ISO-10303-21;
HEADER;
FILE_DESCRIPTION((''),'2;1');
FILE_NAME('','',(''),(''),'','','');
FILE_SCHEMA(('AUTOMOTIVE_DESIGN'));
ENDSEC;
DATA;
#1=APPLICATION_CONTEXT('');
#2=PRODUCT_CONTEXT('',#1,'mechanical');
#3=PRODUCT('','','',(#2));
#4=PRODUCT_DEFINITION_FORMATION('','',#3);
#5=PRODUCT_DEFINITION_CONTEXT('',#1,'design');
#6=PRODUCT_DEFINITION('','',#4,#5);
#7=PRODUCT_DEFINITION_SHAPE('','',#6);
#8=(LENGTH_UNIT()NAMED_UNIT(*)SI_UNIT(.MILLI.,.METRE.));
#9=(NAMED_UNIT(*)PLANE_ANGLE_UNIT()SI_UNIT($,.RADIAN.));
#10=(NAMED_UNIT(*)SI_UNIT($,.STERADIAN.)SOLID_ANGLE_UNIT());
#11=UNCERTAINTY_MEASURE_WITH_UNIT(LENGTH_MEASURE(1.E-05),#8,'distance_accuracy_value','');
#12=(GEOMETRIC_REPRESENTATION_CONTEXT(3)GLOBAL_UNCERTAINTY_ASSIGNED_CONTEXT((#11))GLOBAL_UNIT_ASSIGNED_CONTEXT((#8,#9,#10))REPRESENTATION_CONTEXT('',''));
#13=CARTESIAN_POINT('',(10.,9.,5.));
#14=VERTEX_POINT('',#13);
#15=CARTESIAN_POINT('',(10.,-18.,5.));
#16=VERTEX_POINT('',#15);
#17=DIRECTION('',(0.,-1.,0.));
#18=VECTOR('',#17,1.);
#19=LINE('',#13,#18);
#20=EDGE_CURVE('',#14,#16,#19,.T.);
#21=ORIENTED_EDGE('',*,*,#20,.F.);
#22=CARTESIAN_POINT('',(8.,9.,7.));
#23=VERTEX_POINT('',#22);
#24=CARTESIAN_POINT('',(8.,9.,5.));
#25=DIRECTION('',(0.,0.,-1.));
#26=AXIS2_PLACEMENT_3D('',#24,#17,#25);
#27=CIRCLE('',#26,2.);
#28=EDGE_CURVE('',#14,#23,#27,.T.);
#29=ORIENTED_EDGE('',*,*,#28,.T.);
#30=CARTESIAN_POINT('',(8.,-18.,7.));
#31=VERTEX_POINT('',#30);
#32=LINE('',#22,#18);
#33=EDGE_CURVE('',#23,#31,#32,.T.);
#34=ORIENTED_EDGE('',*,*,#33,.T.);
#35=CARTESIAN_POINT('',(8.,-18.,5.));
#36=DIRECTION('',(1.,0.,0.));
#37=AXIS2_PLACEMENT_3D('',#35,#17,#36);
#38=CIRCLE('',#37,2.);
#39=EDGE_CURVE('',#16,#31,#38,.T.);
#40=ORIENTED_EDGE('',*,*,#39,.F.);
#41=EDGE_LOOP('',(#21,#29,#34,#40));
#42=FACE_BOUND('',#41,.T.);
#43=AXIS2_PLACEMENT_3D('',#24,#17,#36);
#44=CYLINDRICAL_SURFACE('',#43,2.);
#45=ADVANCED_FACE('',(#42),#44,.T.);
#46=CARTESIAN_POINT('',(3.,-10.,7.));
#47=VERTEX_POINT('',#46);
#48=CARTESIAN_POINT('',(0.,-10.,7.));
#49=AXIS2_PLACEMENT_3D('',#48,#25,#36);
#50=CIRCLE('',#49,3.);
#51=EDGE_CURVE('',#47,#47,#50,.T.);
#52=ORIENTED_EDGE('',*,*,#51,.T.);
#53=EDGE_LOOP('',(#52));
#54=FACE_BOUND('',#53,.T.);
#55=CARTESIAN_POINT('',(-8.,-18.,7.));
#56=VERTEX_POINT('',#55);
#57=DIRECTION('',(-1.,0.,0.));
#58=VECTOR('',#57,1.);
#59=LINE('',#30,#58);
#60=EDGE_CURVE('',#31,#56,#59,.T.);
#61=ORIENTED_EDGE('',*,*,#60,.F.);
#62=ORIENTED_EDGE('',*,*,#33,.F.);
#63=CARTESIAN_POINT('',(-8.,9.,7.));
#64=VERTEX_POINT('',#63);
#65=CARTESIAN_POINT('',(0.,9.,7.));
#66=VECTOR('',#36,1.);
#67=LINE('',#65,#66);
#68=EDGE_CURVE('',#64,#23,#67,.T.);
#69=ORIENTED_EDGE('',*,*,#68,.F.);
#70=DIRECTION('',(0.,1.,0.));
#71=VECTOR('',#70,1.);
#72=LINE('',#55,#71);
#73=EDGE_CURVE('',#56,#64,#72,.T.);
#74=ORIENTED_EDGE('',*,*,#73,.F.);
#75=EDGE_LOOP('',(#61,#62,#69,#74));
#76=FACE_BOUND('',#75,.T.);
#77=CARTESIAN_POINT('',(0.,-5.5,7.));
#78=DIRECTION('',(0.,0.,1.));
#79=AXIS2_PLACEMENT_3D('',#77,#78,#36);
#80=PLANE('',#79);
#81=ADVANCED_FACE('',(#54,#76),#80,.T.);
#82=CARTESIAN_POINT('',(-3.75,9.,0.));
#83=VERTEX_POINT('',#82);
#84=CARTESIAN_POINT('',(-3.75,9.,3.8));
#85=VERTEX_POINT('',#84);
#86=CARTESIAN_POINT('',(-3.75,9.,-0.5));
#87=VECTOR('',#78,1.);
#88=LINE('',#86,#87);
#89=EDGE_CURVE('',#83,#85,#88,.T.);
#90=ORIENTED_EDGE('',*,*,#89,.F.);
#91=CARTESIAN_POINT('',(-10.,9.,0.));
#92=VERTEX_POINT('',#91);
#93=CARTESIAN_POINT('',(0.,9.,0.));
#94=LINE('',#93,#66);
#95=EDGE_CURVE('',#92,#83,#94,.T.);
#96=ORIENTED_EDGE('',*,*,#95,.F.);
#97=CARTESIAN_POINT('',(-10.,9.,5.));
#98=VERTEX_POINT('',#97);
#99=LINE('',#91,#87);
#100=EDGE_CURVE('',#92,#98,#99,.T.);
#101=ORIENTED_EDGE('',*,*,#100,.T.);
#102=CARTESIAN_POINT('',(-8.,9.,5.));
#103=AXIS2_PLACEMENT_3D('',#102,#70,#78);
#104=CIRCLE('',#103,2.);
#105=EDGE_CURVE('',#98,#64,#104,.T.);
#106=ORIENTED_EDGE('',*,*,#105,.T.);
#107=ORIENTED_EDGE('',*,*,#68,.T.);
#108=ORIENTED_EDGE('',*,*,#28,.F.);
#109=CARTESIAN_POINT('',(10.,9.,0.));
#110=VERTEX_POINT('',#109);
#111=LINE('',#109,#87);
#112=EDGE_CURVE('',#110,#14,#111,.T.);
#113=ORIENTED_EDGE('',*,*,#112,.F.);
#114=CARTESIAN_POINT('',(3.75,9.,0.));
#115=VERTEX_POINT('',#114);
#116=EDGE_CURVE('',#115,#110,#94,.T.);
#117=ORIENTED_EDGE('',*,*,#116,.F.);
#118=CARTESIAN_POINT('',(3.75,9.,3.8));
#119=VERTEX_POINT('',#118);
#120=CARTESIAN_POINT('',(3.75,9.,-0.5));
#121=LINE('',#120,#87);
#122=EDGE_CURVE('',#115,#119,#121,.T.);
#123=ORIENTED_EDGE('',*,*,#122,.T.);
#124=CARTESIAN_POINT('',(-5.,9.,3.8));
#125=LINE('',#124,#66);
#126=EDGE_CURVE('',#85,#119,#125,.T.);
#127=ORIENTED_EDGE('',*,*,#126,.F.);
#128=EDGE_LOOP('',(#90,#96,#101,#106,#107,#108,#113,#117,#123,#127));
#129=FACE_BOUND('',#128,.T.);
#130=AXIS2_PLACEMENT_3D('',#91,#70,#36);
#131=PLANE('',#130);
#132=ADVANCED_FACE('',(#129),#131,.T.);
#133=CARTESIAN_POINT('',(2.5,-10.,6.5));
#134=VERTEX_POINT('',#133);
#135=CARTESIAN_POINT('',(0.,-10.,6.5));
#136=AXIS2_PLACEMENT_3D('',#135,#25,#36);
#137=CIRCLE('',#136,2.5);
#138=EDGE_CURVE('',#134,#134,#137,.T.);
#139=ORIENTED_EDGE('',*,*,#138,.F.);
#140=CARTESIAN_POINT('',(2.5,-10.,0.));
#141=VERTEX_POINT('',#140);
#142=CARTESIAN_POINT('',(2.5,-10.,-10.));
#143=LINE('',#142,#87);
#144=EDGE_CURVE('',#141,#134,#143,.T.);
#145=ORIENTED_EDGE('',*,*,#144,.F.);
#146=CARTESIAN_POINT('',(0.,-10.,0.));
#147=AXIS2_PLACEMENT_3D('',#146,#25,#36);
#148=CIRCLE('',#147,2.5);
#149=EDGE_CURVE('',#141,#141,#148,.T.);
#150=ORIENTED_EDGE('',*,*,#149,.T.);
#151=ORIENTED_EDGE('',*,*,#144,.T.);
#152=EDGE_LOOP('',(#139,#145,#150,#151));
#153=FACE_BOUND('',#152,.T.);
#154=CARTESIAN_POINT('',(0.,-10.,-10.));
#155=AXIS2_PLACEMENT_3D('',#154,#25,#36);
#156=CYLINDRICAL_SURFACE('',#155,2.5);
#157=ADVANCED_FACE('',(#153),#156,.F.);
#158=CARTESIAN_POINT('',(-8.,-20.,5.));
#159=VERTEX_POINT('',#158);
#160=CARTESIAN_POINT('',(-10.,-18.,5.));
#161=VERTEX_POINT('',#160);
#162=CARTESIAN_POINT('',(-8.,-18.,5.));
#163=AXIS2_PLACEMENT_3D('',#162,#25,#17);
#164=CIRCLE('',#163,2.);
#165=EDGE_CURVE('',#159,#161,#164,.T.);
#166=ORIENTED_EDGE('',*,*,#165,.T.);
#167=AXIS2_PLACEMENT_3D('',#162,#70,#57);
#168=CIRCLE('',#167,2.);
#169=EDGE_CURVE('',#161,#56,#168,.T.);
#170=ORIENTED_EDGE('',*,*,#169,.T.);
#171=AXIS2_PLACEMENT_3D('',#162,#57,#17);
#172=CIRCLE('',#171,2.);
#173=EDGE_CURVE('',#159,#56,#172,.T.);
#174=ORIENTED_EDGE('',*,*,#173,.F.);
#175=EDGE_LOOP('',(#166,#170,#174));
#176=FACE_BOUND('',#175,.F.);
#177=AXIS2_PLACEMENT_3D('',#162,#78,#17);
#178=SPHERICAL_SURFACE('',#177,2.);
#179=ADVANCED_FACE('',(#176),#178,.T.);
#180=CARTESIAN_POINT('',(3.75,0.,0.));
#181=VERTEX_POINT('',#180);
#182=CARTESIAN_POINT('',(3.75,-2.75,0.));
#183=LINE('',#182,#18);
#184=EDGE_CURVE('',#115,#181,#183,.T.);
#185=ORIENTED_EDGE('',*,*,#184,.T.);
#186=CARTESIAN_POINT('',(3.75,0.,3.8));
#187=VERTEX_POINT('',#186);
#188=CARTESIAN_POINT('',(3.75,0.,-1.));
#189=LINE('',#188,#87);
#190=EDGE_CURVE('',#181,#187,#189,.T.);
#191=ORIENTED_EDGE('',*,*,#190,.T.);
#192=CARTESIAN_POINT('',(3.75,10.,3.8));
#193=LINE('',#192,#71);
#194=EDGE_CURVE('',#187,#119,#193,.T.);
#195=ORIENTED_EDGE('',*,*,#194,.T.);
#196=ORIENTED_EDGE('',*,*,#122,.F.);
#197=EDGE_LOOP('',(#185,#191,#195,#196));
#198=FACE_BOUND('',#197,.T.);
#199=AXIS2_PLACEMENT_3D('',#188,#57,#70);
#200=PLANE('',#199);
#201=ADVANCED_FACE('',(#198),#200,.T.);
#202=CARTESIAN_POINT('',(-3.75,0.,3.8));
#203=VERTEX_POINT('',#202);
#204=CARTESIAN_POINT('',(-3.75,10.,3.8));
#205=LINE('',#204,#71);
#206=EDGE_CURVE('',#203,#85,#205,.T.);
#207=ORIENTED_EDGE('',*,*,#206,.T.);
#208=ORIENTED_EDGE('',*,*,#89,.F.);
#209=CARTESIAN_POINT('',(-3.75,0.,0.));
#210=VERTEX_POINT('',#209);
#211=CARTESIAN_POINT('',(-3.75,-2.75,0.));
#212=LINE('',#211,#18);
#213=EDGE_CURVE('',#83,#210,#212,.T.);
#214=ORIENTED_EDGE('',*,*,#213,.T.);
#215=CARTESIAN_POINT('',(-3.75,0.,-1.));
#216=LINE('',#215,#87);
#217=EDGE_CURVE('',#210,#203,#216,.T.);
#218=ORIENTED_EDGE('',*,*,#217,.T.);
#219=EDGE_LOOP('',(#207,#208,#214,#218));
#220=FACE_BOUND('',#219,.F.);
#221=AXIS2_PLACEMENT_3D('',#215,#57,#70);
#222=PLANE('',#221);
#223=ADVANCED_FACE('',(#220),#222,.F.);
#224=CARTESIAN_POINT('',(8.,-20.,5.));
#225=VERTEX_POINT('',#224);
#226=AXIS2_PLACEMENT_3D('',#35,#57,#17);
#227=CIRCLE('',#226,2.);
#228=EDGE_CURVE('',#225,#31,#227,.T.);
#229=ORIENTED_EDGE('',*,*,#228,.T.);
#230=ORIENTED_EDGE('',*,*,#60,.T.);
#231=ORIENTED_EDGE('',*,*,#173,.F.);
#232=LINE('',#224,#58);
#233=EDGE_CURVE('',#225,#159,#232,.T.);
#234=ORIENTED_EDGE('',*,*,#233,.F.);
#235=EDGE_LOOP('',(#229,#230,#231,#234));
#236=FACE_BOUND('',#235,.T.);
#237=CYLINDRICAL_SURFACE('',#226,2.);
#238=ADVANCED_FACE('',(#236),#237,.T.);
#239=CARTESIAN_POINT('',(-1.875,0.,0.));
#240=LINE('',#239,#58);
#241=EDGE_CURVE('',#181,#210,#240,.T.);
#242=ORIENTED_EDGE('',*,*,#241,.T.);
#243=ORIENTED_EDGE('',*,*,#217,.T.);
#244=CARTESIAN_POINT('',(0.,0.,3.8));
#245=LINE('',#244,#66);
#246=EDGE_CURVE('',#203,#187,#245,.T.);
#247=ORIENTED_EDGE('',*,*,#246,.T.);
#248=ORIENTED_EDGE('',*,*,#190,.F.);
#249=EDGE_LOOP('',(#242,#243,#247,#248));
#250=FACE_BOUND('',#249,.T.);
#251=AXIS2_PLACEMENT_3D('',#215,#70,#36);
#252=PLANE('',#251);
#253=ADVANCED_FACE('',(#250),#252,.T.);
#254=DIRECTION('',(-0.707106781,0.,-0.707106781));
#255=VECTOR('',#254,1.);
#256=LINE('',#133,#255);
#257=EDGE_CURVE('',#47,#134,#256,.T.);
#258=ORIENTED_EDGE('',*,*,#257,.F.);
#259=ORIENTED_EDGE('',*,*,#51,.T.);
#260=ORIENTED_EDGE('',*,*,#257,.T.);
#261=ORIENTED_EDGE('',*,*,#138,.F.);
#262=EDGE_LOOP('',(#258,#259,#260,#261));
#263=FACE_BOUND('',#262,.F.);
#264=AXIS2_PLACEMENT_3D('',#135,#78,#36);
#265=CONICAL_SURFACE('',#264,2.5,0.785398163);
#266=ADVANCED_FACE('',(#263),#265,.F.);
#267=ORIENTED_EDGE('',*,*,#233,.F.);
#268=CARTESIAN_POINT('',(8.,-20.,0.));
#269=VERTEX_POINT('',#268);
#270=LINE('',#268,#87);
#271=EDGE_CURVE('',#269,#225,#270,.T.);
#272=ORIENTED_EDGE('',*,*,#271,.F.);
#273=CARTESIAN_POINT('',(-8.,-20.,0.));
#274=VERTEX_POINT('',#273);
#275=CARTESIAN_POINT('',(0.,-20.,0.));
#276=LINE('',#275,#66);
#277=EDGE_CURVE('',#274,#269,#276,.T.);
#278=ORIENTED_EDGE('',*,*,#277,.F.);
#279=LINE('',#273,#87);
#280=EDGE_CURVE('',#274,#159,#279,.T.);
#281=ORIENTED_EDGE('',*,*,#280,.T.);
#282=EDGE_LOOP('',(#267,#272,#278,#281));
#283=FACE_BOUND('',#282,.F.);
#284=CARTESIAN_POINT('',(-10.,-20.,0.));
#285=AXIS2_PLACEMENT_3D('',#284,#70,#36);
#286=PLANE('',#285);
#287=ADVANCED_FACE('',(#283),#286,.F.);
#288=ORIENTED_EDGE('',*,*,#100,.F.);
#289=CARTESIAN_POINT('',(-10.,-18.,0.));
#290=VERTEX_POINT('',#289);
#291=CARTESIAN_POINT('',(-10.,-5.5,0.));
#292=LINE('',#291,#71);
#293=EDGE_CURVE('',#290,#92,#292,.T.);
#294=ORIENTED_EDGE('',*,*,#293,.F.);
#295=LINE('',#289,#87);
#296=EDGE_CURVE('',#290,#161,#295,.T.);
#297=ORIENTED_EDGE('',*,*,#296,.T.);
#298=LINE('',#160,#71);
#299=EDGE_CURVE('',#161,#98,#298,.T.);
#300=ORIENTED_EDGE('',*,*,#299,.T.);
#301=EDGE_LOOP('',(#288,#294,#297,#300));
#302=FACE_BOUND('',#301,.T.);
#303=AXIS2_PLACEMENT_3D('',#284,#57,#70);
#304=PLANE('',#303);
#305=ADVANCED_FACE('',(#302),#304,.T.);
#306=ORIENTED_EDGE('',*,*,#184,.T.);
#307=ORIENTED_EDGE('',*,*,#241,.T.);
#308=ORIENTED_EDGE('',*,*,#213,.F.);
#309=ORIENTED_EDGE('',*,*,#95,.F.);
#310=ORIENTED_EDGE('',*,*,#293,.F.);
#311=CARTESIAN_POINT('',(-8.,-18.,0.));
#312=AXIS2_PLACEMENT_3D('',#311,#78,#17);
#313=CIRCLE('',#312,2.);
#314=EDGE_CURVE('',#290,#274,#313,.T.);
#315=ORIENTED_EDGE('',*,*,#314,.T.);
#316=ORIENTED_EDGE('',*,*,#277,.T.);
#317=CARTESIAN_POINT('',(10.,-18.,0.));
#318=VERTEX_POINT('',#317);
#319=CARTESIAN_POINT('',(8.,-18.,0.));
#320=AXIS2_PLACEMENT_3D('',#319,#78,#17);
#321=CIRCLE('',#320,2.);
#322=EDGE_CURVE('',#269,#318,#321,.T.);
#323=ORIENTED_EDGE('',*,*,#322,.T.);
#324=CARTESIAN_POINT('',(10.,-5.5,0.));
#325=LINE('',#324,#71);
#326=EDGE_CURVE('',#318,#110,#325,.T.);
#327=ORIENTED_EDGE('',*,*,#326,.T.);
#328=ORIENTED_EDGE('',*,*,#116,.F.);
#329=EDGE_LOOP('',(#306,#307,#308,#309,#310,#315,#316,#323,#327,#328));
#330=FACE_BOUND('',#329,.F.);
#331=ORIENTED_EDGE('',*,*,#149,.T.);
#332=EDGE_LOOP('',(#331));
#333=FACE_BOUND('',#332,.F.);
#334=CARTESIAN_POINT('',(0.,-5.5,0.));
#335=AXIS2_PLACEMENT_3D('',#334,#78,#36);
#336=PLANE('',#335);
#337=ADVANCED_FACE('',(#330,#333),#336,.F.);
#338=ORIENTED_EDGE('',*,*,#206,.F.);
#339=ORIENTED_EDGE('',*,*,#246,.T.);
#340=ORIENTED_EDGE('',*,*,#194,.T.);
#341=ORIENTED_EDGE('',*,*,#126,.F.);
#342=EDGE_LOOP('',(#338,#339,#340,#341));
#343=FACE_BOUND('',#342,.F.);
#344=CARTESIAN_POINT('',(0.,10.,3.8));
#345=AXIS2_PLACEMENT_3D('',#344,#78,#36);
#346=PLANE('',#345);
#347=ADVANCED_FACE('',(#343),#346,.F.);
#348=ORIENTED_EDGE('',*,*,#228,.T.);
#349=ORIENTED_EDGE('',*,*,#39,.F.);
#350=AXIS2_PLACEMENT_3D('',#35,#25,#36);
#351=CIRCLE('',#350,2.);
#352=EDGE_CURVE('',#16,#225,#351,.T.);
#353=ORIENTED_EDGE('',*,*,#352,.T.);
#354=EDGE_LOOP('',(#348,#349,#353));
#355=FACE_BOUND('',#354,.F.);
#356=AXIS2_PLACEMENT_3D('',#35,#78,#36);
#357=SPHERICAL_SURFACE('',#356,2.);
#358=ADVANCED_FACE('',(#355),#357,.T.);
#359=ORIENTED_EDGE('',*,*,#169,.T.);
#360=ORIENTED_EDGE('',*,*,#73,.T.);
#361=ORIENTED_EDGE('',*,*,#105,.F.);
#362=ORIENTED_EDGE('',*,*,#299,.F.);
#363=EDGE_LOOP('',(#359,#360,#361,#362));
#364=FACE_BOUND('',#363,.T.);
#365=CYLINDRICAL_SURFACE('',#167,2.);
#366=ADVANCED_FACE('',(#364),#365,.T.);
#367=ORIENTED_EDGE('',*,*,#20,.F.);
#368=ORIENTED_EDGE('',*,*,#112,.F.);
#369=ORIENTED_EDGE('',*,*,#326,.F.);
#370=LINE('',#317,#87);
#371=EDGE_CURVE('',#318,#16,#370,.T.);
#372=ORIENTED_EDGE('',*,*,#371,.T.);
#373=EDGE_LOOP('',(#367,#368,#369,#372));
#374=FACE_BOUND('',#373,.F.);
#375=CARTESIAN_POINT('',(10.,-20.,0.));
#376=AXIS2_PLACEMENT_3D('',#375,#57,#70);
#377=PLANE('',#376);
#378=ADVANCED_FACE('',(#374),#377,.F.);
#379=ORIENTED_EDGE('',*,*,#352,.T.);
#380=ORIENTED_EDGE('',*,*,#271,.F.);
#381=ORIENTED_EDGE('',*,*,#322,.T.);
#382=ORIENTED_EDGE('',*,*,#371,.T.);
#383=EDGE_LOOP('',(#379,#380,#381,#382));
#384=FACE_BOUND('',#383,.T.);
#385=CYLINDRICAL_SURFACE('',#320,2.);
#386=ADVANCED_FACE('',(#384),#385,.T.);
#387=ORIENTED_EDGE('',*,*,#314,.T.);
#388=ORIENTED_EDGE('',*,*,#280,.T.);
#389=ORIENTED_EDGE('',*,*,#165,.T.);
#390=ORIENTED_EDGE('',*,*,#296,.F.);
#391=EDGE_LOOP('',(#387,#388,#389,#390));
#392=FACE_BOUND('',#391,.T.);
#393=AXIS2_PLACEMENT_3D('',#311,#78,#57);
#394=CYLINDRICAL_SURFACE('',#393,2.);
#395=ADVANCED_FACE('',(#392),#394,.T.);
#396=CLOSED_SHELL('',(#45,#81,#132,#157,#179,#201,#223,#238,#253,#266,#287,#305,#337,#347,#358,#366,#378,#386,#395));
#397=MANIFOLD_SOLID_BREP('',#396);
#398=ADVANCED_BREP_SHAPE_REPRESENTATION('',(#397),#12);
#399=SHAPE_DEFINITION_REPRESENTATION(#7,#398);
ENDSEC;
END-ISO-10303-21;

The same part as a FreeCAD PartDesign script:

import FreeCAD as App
import Part
import Sketcher

V = App.Vector
Q = App.Units.Quantity


def edges_at(feature, points):
    """Names of the edges that pass closest to the given points."""
    edges = feature.Shape.Edges
    near = lambda p: min(range(len(edges)), key=lambda i: edges[i].distToShape(Part.Vertex(*p))[0])
    return sorted({f"Edge{near(p) + 1}" for p in points})

doc = App.newDocument("Part")
body = doc.addObject("PartDesign::Body", "Body")

sketch1 = doc.addObject("Sketcher::SketchObject", "Sketch")
body.addObject(sketch1)
sketch1.AttachmentSupport = (doc.XY_Plane, [""])
sketch1.MapMode = "FlatFace"
sketch1.AttachmentOffset = App.Placement(V(0, 0, -10), App.Rotation())
sketch1.addGeometry(Part.Circle(V(0, -10, 0), V(0, 0, 1), 2.5), False)
sketch1.addConstraint([
    Sketcher.Constraint("PointOnObject", 0, 3, -2),
    Sketcher.Constraint("Diameter", 0, Q("5 mm")),
    Sketcher.Constraint("DistanceY", 0, 3, -1, 1, Q("10 mm")),
])
pad1 = doc.addObject("PartDesign::Pad", "Pad")
body.addObject(pad1)
pad1.Profile = sketch1
pad1.Length = 20
body2 = doc.addObject("PartDesign::Body", "Body001")

sketch2 = doc.addObject("Sketcher::SketchObject", "Sketch001")
body2.addObject(sketch2)
sketch2.AttachmentSupport = (doc.getObject("XY_Plane001"), [""])
sketch2.MapMode = "FlatFace"
sketch2.AttachmentOffset = App.Placement(V(0, 0, -1), App.Rotation())
sketch2.addGeometry([
    Part.LineSegment(V(-3.75, 20, 0), V(-3.75, 0, 0)),
    Part.LineSegment(V(-3.75, 0, 0), V(3.75, 0, 0)),
    Part.LineSegment(V(3.75, 0, 0), V(3.75, 20, 0)),
    Part.LineSegment(V(3.75, 20, 0), V(-3.75, 20, 0)),
], False)
sketch2.addConstraint([
    Sketcher.Constraint("Coincident", 0, 2, 1, 1),
    Sketcher.Constraint("Coincident", 1, 2, 2, 1),
    Sketcher.Constraint("Coincident", 2, 2, 3, 1),
    Sketcher.Constraint("Coincident", 3, 2, 0, 1),
    Sketcher.Constraint("Vertical", 0),
    Sketcher.Constraint("Horizontal", 1),
    Sketcher.Constraint("Vertical", 2),
    Sketcher.Constraint("Horizontal", 3),
    Sketcher.Constraint("Symmetric", 0, 2, 1, 2, -1, 1),
    Sketcher.Constraint("DistanceY", 0, 2, 0, 1, Q("20 mm")),
    Sketcher.Constraint("DistanceX", 1, 1, 1, 2, Q("7.5 mm")),
])
pad2 = doc.addObject("PartDesign::Pad", "Pad001")
body2.addObject(pad2)
pad2.Profile = sketch2
pad2.Length = 4.8
body3 = doc.addObject("PartDesign::Body", "Body002")

sketch3 = doc.addObject("Sketcher::SketchObject", "Sketch002")
body3.addObject(sketch3)
sketch3.AttachmentSupport = (doc.getObject("XY_Plane002"), [""])
sketch3.MapMode = "FlatFace"
sketch3.addGeometry([
    Part.LineSegment(V(-10, 9, 0), V(-10, -20, 0)),
    Part.LineSegment(V(-10, -20, 0), V(10, -20, 0)),
    Part.LineSegment(V(10, -20, 0), V(10, 9, 0)),
    Part.LineSegment(V(10, 9, 0), V(-10, 9, 0)),
], False)
sketch3.addConstraint([
    Sketcher.Constraint("Coincident", 0, 2, 1, 1),
    Sketcher.Constraint("Coincident", 1, 2, 2, 1),
    Sketcher.Constraint("Coincident", 2, 2, 3, 1),
    Sketcher.Constraint("Coincident", 3, 2, 0, 1),
    Sketcher.Constraint("Vertical", 0),
    Sketcher.Constraint("Horizontal", 1),
    Sketcher.Constraint("Vertical", 2),
    Sketcher.Constraint("Horizontal", 3),
    Sketcher.Constraint("DistanceX", 1, 1, 1, 2, Q("20 mm")),
    Sketcher.Constraint("DistanceY", 0, 2, 0, 1, Q("29 mm")),
    Sketcher.Constraint("DistanceX", 0, 2, -1, 1, Q("10 mm")),
    Sketcher.Constraint("DistanceY", 0, 2, -1, 1, Q("20 mm")),
])
pad3 = doc.addObject("PartDesign::Pad", "Pad002")
body3.addObject(pad3)
pad3.Profile = sketch3
pad3.Length = 7
doc.recompute()

boolean = doc.addObject("PartDesign::Boolean", "Boolean")
body3.addObject(boolean)
boolean.Type = "Cut"
boolean.addObjects([body2])
doc.recompute()

boolean2 = doc.addObject("PartDesign::Boolean", "Boolean001")
body3.addObject(boolean2)
boolean2.Type = "Cut"
boolean2.addObjects([body])
doc.recompute()

fillet = doc.addObject("PartDesign::Fillet", "Fillet")
body3.addObject(fillet)
fillet.Base = (boolean2, edges_at(boolean2, [(-10, -20, 3.5), (10, -20, 3.5)]))
fillet.Radius = 2
doc.recompute()

fillet2 = doc.addObject("PartDesign::Fillet", "Fillet001")
body3.addObject(fillet2)
fillet2.Base = (fillet, edges_at(fillet, [(-10, -4.5, 7)]))
fillet2.Radius = 2
doc.recompute()

chamfer = doc.addObject("PartDesign::Chamfer", "Chamfer")
body3.addObject(chamfer)
chamfer.Base = (fillet2, edges_at(fillet2, [(-2.5, -10, 7)]))
chamfer.Size = 0.5

doc.recompute()
